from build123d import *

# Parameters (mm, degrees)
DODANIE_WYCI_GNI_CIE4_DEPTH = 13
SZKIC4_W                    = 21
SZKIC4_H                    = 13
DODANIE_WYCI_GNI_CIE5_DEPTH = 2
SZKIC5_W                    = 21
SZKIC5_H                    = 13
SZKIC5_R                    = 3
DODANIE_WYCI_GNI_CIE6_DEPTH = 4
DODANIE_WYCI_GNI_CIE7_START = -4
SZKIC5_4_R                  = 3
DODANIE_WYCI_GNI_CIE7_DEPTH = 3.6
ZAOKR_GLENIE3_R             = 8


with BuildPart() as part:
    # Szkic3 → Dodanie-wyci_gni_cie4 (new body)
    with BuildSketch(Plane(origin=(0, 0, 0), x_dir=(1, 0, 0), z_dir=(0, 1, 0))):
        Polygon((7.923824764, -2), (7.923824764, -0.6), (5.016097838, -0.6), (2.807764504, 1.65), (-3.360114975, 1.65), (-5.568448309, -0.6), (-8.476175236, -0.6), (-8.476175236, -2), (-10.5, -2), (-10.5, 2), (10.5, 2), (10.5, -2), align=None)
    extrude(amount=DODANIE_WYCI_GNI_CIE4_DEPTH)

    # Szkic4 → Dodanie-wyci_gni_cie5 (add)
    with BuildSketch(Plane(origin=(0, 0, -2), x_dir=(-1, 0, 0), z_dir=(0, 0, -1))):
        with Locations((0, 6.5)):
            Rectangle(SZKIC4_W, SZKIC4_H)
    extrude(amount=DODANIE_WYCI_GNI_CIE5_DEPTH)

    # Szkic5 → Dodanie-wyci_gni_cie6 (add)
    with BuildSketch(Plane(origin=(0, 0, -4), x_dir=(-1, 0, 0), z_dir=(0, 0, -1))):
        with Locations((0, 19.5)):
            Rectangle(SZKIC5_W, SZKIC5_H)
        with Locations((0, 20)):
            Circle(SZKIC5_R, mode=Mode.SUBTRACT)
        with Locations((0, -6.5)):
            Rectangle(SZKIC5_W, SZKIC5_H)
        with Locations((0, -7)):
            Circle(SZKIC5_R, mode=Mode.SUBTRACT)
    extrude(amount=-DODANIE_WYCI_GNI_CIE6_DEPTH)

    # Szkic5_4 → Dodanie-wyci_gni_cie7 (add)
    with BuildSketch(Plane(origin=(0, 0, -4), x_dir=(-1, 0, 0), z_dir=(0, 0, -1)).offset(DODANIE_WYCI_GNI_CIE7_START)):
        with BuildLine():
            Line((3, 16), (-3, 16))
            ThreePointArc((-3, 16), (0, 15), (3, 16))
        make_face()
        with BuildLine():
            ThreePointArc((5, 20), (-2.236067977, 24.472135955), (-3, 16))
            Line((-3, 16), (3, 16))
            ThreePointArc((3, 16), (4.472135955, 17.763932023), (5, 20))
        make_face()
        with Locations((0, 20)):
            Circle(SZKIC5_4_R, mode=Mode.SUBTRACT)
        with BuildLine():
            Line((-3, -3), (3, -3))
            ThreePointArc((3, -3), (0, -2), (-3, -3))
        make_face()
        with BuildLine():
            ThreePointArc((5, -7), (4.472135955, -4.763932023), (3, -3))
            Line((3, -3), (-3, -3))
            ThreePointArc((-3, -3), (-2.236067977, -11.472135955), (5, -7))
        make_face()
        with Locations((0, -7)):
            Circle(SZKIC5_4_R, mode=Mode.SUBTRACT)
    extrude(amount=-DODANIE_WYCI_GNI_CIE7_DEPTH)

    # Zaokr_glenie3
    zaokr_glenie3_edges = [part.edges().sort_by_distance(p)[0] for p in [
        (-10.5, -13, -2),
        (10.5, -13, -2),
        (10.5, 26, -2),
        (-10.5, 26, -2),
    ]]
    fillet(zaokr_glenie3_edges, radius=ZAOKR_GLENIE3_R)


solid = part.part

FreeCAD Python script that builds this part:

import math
import FreeCAD as App
import Part
import Sketcher
from FreeCAD import Vector
Q = App.Units.Quantity


def edges_at(feature, points):
    """Names of the edges that pass closest to the given points."""
    edges = feature.Shape.Edges
    near = lambda p: min(range(len(edges)), key=lambda i: edges[i].distToShape(Part.Vertex(*p))[0])
    return sorted({f"Edge{near(p) + 1}" for p in points})

doc = App.newDocument("Part")
body = doc.addObject("PartDesign::Body", "Body")

sketch1 = body.newObject("Sketcher::SketchObject", "Sketch")
sketch1.AttachmentSupport = (doc.getObject("XZ_Plane"), [""])
sketch1.MapMode = "FlatFace"
sketch1.addGeometry(Part.LineSegment(Vector(7.9, 0.6, 0), Vector(7.9, 2, 0)), False)
sketch1.addGeometry(Part.LineSegment(Vector(7.9, 2, 0), Vector(10.5, 2, 0)), False)
sketch1.addGeometry(Part.LineSegment(Vector(10.5, 2, 0), Vector(10.5, -2, 0)), False)
sketch1.addGeometry(Part.LineSegment(Vector(10.5, -2, 0), Vector(-10.5, -2, 0)), False)
sketch1.addGeometry(Part.LineSegment(Vector(-10.5, -2, 0), Vector(-10.5, 2, 0)), False)
sketch1.addGeometry(Part.LineSegment(Vector(-10.5, 2, 0), Vector(-8.5, 2, 0)), False)
sketch1.addGeometry(Part.LineSegment(Vector(-8.5, 2, 0), Vector(-8.5, 0.6, 0)), False)
sketch1.addGeometry(Part.LineSegment(Vector(-8.5, 0.6, 0), Vector(-5.6, 0.6, 0)), False)
sketch1.addGeometry(Part.LineSegment(Vector(-5.6, 0.6, 0), Vector(-3.4, -1.6, 0)), False)
sketch1.addGeometry(Part.LineSegment(Vector(-3.4, -1.6, 0), Vector(2.8, -1.6, 0)), False)
sketch1.addGeometry(Part.LineSegment(Vector(2.8, -1.6, 0), Vector(5, 0.6, 0)), False)
sketch1.addGeometry(Part.LineSegment(Vector(5, 0.6, 0), Vector(7.9, 0.6, 0)), False)
sketch1.addConstraint(Sketcher.Constraint("Coincident", 0, 2, 1, 1))
sketch1.addConstraint(Sketcher.Constraint("Coincident", 1, 2, 2, 1))
sketch1.addConstraint(Sketcher.Constraint("Coincident", 2, 2, 3, 1))
sketch1.addConstraint(Sketcher.Constraint("Coincident", 3, 2, 4, 1))
sketch1.addConstraint(Sketcher.Constraint("Coincident", 4, 2, 5, 1))
sketch1.addConstraint(Sketcher.Constraint("Coincident", 5, 2, 6, 1))
sketch1.addConstraint(Sketcher.Constraint("Coincident", 6, 2, 7, 1))
sketch1.addConstraint(Sketcher.Constraint("Coincident", 7, 2, 8, 1))
sketch1.addConstraint(Sketcher.Constraint("Coincident", 8, 2, 9, 1))
sketch1.addConstraint(Sketcher.Constraint("Coincident", 9, 2, 10, 1))
sketch1.addConstraint(Sketcher.Constraint("Coincident", 10, 2, 11, 1))
sketch1.addConstraint(Sketcher.Constraint("Coincident", 11, 2, 0, 1))
sketch1.addConstraint(Sketcher.Constraint("Vertical", 0))
sketch1.addConstraint(Sketcher.Constraint("Horizontal", 1))
sketch1.addConstraint(Sketcher.Constraint("Vertical", 2))
sketch1.addConstraint(Sketcher.Constraint("Horizontal", 3))
sketch1.addConstraint(Sketcher.Constraint("Vertical", 4))
sketch1.addConstraint(Sketcher.Constraint("Horizontal", 5))
sketch1.addConstraint(Sketcher.Constraint("Vertical", 6))
sketch1.addConstraint(Sketcher.Constraint("Horizontal", 7))
sketch1.addConstraint(Sketcher.Constraint("Horizontal", 9))
sketch1.addConstraint(Sketcher.Constraint("Horizontal", 11))
sketch1.addConstraint(Sketcher.Constraint("Symmetric", 1, 2, 3, 2, -1, 1))
sketch1.addConstraint(Sketcher.Constraint("Horizontal", 1, 2, 4, 2))
sketch1.addConstraint(Sketcher.Constraint("Horizontal", 7, 2, 10, 2))
sketch1.addConstraint(Sketcher.Constraint("Equal", 7, 11))
sketch1.addConstraint(Sketcher.Constraint("Equal", 8, 10))
sketch1.addConstraint(Sketcher.Constraint("DistanceX", 3, 2, 3, 1, Q("21 mm")))
sketch1.addConstraint(Sketcher.Constraint("DistanceY", 2, 2, 2, 1, Q("4 mm")))
sketch1.addConstraint(Sketcher.Constraint("DistanceY", 0, 1, 0, 2, Q("1.4 mm")))
sketch1.addConstraint(Sketcher.Constraint("DistanceX", 5, 2, 0, 2, Q("16.4 mm")))
sketch1.addConstraint(Sketcher.Constraint("DistanceY", 8, 2, -1, 1, Q("1.65 mm")))
sketch1.addConstraint(Sketcher.Constraint("DistanceX", 9, 1, 9, 2, Q("6.167879 mm")))
sketch1.addConstraint(Sketcher.Constraint("DistanceX", 1, 1, 1, 2, Q("2.576175 mm")))
sketch1.addConstraint(Sketcher.Constraint("DistanceX", 7, 1, 7, 2, Q("2.907727 mm")))
pad1 = body.newObject("PartDesign::Pad", "Pad")
pad1.Profile = sketch1
pad1.Length = 13
pad1.Reversed = True

sketch2 = body.newObject("Sketcher::SketchObject", "Sketch001")
sketch2.AttachmentSupport = (doc.getObject("XY_Plane"), [""])
sketch2.MapMode = "FlatFace"
sketch2.AttachmentOffset = App.Placement(Vector(0, 0, -2), App.Rotation())
sketch2.addGeometry(Part.LineSegment(Vector(10, 13, 0), Vector(10, 0, 0)), False)
sketch2.addGeometry(Part.LineSegment(Vector(10, 0, 0), Vector(-10, 0, 0)), False)
sketch2.addGeometry(Part.LineSegment(Vector(-10, 0, 0), Vector(-10, 13, 0)), False)
sketch2.addGeometry(Part.LineSegment(Vector(-10, 13, 0), Vector(10, 13, 0)), False)
sketch2.addConstraint(Sketcher.Constraint("Coincident", 0, 2, 1, 1))
sketch2.addConstraint(Sketcher.Constraint("Coincident", 1, 2, 2, 1))
sketch2.addConstraint(Sketcher.Constraint("Coincident", 2, 2, 3, 1))
sketch2.addConstraint(Sketcher.Constraint("Coincident", 3, 2, 0, 1))
sketch2.addConstraint(Sketcher.Constraint("Vertical", 0))
sketch2.addConstraint(Sketcher.Constraint("Horizontal", 1))
sketch2.addConstraint(Sketcher.Constraint("Vertical", 2))
sketch2.addConstraint(Sketcher.Constraint("Horizontal", 3))
sketch2.addConstraint(Sketcher.Constraint("Symmetric", 0, 2, 1, 2, -1, 1))
sketch2.addConstraint(Sketcher.Constraint("DistanceX", 1, 2, 1, 1, Q("21 mm")))
sketch2.addConstraint(Sketcher.Constraint("DistanceY", 0, 2, 0, 1, Q("13 mm")))
pad2 = body.newObject("PartDesign::Pad", "Pad001")
pad2.Profile = sketch2
pad2.Length = 2
pad2.Reversed = True

sketch3 = body.newObject("Sketcher::SketchObject", "Sketch002")
sketch3.AttachmentSupport = (doc.getObject("XY_Plane"), [""])
sketch3.MapMode = "FlatFace"
sketch3.AttachmentOffset = App.Placement(Vector(0, 0, -4), App.Rotation())
sketch3.addGeometry(Part.LineSegment(Vector(10.5, 26, 0), Vector(10.5, 13, 0)), False)
sketch3.addGeometry(Part.LineSegment(Vector(10.5, 13, 0), Vector(-10.5, 13, 0)), False)
sketch3.addGeometry(Part.LineSegment(Vector(-10.5, 13, 0), Vector(-10.5, 26, 0)), False)
sketch3.addGeometry(Part.LineSegment(Vector(-10.5, 26, 0), Vector(10.5, 26, 0)), False)
sketch3.addGeometry(Part.Circle(Vector(0, 20, 0), Vector(0, 0, 1), 3), False)
sketch3.addGeometry(Part.LineSegment(Vector(10.5, 0, 0), Vector(10.5, -13, 0)), False)
sketch3.addGeometry(Part.LineSegment(Vector(10.5, -13, 0), Vector(-10.5, -13, 0)), False)
sketch3.addGeometry(Part.LineSegment(Vector(-10.5, -13, 0), Vector(-10.5, 0, 0)), False)
sketch3.addGeometry(Part.LineSegment(Vector(-10.5, 0, 0), Vector(10.5, 0, 0)), False)
sketch3.addGeometry(Part.Circle(Vector(0, -7, 0), Vector(0, 0, 1), 3), False)
sketch3.addConstraint(Sketcher.Constraint("Coincident", 0, 2, 1, 1))
sketch3.addConstraint(Sketcher.Constraint("Coincident", 1, 2, 2, 1))
sketch3.addConstraint(Sketcher.Constraint("Coincident", 2, 2, 3, 1))
sketch3.addConstraint(Sketcher.Constraint("Coincident", 3, 2, 0, 1))
sketch3.addConstraint(Sketcher.Constraint("Coincident", 5, 2, 6, 1))
sketch3.addConstraint(Sketcher.Constraint("Coincident", 6, 2, 7, 1))
sketch3.addConstraint(Sketcher.Constraint("Coincident", 7, 2, 8, 1))
sketch3.addConstraint(Sketcher.Constraint("Coincident", 8, 2, 5, 1))
sketch3.addConstraint(Sketcher.Constraint("Vertical", 0))
sketch3.addConstraint(Sketcher.Constraint("Horizontal", 1))
sketch3.addConstraint(Sketcher.Constraint("Vertical", 2))
sketch3.addConstraint(Sketcher.Constraint("Horizontal", 3))
sketch3.addConstraint(Sketcher.Constraint("Vertical", 5))
sketch3.addConstraint(Sketcher.Constraint("Horizontal", 6))
sketch3.addConstraint(Sketcher.Constraint("Vertical", 7))
sketch3.addConstraint(Sketcher.Constraint("Horizontal", 8))
sketch3.addConstraint(Sketcher.Constraint("Equal", 4, 9))
sketch3.addConstraint(Sketcher.Constraint("Symmetric", 1, 2, 5, 2, -1, 1))
sketch3.addConstraint(Sketcher.Constraint("Symmetric", 7, 2, 8, 2, -1, 1))
sketch3.addConstraint(Sketcher.Constraint("PointOnObject", 4, 3, -2))
sketch3.addConstraint(Sketcher.Constraint("PointOnObject", 9, 3, -2))
sketch3.addConstraint(Sketcher.Constraint("Vertical", 3, 2, 5, 2))
sketch3.addConstraint(Sketcher.Constraint("Equal", 2, 5))
sketch3.addConstraint(Sketcher.Constraint("Diameter", 4, Q("6 mm")))
sketch3.addConstraint(Sketcher.Constraint("DistanceX", 1, 2, 1, 1, Q("21 mm")))
sketch3.addConstraint(Sketcher.Constraint("DistanceY", 0, 2, 0, 1, Q("13 mm")))
sketch3.addConstraint(Sketcher.Constraint("DistanceY", -1, 1, 4, 3, Q("20 mm")))
sketch3.addConstraint(Sketcher.Constraint("DistanceY", 9, 3, -1, 1, Q("7 mm")))
pad3 = body.newObject("PartDesign::Pad", "Pad002")
pad3.Profile = sketch3
pad3.Length = 4

sketch4 = body.newObject("Sketcher::SketchObject", "Sketch003")
sketch4.AttachmentSupport = (doc.getObject("XY_Plane"), [""])
sketch4.MapMode = "FlatFace"
sketch4.addGeometry(Part.ArcOfCircle(Part.Circle(Vector(0, 20, 0), Vector(0, 0, 1), 5), math.radians(-127), math.radians(-53)), False)
sketch4.addGeometry(Part.ArcOfCircle(Part.Circle(Vector(0, 20, 0), Vector(0, 0, 1), 5), math.radians(-180), math.radians(-127)), False)
sketch4.addGeometry(Part.ArcOfCircle(Part.Circle(Vector(0, 20, 0), Vector(0, 0, 1), 5), math.radians(-53), math.radians(180)), False)
sketch4.addGeometry(Part.Circle(Vector(0, 20, 0), Vector(0, 0, 1), 3), False)
sketch4.addGeometry(Part.ArcOfCircle(Part.Circle(Vector(0, -7, 0), Vector(0, 0, 1), 5), math.radians(53), math.radians(127)), False)
sketch4.addGeometry(Part.ArcOfCircle(Part.Circle(Vector(0, -7, 0), Vector(0, 0, 1), 5), math.radians(180), math.radians(413)), False)
sketch4.addGeometry(Part.ArcOfCircle(Part.Circle(Vector(0, -7, 0), Vector(0, 0, 1), 5), math.radians(127), math.radians(180)), False)
sketch4.addGeometry(Part.Circle(Vector(0, -7, 0), Vector(0, 0, 1), 3), False)
sketch4.addConstraint(Sketcher.Constraint("Tangent", 0, 1, 1, 2))
sketch4.addConstraint(Sketcher.Constraint("Tangent", 1, 1, 2, 2))
sketch4.addConstraint(Sketcher.Constraint("Tangent", 2, 1, 0, 2))
sketch4.addConstraint(Sketcher.Constraint("Tangent", 4, 1, 5, 2))
sketch4.addConstraint(Sketcher.Constraint("Tangent", 5, 1, 6, 2))
sketch4.addConstraint(Sketcher.Constraint("Tangent", 6, 1, 4, 2))
sketch4.addConstraint(Sketcher.Constraint("Coincident", 3, 3, 0, 3))
sketch4.addConstraint(Sketcher.Constraint("Coincident", 7, 3, 4, 3))
sketch4.addConstraint(Sketcher.Constraint("Equal", 2, 4))
sketch4.addConstraint(Sketcher.Constraint("Equal", 3, 7))
sketch4.addConstraint(Sketcher.Constraint("Symmetric", 0, 1, 2, 1, -2))
sketch4.addConstraint(Sketcher.Constraint("Symmetric", 4, 1, 6, 1, -2))
sketch4.addConstraint(Sketcher.Constraint("Horizontal", 3, 3, 1, 1))
sketch4.addConstraint(Sketcher.Constraint("Horizontal", 7, 3, 5, 1))
sketch4.addConstraint(Sketcher.Constraint("Vertical", 2, 1, 4, 1))
sketch4.addConstraint(Sketcher.Constraint("Diameter", 3, Q("6 mm")))
sketch4.addConstraint(Sketcher.Constraint("Radius", 0, Q("5 mm")))
sketch4.addConstraint(Sketcher.Constraint("DistanceY", -1, 1, 0, 3, Q("20 mm")))
sketch4.addConstraint(Sketcher.Constraint("DistanceY", 4, 3, -1, 1, Q("7 mm")))
sketch4.addConstraint(Sketcher.Constraint("DistanceX", 0, 1, -1, 1, Q("3 mm")))
pad4 = body.newObject("PartDesign::Pad", "Pad003")
pad4.Profile = sketch4
pad4.Length = 3.6
doc.recompute()

fillet = body.newObject("PartDesign::Fillet", "Fillet")
fillet.Base = (pad4, edges_at(pad4, [
    (-10.5, -13, -2),
    (10.5, -13, -2),
    (10.5, 26, -2),
    (-10.5, 26, -2),
]))
fillet.Radius = 8

doc.recompute()
